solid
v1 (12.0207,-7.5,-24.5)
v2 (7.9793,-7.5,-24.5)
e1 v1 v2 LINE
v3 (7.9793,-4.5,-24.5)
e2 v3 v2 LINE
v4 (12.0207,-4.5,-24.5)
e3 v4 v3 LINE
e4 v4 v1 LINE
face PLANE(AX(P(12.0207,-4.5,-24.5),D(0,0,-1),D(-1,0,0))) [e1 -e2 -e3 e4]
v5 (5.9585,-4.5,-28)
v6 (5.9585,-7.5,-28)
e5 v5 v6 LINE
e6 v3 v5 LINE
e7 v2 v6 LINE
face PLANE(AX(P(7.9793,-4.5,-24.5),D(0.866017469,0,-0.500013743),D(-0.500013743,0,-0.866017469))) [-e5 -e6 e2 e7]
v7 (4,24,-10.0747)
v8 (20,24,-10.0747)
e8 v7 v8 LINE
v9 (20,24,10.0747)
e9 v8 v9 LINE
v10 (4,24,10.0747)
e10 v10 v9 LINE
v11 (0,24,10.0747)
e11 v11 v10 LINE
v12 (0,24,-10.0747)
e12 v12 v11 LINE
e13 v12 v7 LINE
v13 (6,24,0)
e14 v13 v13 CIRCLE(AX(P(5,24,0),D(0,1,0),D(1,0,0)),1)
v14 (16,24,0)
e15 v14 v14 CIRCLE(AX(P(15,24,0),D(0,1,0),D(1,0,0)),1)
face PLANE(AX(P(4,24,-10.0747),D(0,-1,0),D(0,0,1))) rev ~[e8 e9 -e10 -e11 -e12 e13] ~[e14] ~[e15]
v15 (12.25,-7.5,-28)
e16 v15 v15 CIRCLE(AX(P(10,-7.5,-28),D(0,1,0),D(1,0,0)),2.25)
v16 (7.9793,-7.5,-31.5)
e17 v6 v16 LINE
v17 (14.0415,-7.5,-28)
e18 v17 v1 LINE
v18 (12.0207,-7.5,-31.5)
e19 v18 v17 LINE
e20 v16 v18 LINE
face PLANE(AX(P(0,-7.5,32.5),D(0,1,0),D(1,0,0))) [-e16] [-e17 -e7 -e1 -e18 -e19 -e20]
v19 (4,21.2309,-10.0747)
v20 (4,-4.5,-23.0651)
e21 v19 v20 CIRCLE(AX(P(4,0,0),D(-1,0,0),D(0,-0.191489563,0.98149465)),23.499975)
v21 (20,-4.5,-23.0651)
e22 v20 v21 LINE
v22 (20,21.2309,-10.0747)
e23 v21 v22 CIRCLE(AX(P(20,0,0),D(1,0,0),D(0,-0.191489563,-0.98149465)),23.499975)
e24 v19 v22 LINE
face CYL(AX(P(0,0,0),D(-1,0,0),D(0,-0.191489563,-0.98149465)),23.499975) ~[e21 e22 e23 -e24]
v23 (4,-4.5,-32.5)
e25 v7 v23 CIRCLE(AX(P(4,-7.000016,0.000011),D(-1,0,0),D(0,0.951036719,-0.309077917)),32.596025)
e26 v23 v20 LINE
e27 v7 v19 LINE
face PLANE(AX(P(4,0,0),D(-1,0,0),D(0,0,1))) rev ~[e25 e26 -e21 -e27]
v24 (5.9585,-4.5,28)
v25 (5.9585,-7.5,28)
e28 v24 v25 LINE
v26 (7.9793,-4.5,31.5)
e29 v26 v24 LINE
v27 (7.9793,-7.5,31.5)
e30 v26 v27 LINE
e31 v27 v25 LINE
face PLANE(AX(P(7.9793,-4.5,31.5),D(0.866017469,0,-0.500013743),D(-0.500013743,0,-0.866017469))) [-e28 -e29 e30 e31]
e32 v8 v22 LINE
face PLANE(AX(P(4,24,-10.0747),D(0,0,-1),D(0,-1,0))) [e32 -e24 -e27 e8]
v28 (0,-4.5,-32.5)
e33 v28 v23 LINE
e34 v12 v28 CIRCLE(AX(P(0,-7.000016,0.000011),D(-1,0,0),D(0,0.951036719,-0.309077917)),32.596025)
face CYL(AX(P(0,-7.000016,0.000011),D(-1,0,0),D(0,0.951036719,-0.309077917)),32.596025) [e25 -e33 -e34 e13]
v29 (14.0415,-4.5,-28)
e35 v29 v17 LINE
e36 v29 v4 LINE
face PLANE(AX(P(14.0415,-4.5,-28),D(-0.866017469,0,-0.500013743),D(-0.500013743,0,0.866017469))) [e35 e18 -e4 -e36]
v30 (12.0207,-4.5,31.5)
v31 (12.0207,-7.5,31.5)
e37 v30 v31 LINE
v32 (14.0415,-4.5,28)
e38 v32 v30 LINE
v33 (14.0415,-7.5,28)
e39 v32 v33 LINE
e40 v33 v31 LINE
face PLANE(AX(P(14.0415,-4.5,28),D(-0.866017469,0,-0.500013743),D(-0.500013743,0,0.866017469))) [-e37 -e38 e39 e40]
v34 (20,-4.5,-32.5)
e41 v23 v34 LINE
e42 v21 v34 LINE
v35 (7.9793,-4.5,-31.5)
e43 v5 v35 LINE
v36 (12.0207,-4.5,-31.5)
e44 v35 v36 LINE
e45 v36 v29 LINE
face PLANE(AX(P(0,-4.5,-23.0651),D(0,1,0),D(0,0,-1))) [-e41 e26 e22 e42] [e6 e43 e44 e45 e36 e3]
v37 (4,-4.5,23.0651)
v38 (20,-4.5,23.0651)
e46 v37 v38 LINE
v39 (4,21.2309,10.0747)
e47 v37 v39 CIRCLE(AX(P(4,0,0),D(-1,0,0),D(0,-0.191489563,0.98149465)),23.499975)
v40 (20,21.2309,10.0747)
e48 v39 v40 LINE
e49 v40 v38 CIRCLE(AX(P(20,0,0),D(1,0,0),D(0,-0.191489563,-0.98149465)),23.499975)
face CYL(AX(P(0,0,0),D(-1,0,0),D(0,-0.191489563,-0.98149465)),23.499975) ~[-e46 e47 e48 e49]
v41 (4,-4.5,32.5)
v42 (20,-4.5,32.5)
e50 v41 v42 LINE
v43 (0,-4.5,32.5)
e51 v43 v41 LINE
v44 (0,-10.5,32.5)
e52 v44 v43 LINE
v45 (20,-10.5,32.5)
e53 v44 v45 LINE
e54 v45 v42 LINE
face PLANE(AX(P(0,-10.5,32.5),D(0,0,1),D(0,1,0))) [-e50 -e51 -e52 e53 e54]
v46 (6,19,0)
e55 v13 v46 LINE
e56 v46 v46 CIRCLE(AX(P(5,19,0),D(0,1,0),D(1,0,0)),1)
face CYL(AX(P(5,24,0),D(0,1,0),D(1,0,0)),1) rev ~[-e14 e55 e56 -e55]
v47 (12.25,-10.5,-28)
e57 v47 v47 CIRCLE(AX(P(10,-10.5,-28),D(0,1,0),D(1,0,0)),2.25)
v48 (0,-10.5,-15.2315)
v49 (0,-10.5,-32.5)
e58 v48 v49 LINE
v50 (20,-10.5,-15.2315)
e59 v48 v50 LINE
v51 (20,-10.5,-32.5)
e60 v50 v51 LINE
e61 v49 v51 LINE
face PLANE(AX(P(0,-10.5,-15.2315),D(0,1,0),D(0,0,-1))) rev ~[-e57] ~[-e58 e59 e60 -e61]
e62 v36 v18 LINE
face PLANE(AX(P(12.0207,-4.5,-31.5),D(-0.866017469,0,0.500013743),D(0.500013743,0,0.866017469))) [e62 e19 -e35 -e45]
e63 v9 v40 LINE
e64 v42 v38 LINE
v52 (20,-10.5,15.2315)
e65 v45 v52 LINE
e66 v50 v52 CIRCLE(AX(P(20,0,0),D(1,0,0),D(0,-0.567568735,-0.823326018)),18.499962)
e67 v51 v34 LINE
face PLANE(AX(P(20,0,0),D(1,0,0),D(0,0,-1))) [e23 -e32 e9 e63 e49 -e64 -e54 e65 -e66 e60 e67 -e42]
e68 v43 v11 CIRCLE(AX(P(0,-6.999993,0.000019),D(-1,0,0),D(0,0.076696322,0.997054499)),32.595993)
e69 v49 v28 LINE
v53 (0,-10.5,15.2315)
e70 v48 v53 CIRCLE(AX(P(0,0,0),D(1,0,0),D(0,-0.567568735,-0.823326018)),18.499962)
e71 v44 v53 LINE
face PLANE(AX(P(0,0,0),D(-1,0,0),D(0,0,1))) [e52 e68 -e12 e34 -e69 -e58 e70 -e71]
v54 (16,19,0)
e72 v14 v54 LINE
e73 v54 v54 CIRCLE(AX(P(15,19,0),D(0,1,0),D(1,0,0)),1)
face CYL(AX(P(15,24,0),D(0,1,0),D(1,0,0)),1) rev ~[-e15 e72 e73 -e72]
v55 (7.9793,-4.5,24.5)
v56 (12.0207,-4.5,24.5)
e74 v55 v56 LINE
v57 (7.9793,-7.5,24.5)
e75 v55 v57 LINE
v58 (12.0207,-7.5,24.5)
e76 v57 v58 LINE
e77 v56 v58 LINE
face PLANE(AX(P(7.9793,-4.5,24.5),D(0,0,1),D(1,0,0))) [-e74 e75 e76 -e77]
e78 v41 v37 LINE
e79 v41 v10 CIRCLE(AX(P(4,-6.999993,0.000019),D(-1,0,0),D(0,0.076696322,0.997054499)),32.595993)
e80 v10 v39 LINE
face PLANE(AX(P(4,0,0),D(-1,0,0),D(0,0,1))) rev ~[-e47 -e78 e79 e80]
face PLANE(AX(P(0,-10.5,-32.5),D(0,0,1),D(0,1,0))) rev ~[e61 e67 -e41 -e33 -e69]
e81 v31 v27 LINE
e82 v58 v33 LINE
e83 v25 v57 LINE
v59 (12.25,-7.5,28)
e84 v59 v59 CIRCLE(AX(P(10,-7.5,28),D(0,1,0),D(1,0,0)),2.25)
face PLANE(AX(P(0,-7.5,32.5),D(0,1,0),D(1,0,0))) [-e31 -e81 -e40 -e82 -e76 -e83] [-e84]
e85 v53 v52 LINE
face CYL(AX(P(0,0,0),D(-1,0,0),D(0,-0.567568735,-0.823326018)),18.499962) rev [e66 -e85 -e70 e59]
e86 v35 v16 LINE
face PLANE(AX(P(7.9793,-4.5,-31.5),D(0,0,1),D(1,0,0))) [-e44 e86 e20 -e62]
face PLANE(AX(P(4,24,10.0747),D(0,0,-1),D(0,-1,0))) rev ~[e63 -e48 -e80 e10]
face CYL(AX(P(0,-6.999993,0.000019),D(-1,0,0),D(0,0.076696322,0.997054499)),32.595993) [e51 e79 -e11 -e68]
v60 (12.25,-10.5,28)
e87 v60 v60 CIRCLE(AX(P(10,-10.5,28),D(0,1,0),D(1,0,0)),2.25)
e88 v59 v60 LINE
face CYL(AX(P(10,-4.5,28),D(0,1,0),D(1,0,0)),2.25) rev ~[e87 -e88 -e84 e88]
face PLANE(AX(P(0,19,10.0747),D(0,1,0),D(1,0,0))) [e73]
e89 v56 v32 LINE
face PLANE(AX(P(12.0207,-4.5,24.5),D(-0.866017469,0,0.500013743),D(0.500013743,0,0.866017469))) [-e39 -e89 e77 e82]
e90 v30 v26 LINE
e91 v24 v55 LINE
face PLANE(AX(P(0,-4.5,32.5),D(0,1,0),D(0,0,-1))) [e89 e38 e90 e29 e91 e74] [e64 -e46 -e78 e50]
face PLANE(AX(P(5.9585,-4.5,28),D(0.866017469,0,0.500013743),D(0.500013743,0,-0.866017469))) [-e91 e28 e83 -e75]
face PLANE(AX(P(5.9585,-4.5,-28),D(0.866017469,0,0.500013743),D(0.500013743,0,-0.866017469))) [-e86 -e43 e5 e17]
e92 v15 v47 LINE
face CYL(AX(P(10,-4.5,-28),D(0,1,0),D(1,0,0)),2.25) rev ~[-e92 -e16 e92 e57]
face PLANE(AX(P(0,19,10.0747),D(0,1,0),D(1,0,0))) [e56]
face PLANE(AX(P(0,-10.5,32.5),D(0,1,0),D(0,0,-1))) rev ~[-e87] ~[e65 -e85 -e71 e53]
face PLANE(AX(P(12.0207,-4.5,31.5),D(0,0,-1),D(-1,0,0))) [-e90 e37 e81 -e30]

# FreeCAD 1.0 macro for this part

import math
import FreeCAD as App
import Part
import Sketcher

V = App.Vector
Q = App.Units.Quantity


def add_polygon(sketch, points):
    """Adds a closed chain of lines whose ends are joined by coincident constraints."""
    first, n = sketch.GeometryCount, len(points)
    for a, b in zip(points, points[1:] + points[:1]):
        sketch.addGeometry(Part.LineSegment(App.Vector(*a, 0), App.Vector(*b, 0)), False)
    for i in range(n):
        sketch.addConstraint(Sketcher.Constraint("Coincident", first + i, 2, first + (i + 1) % n, 1))

doc = App.newDocument("Part")
body = doc.addObject("PartDesign::Body", "Body")

# Sketch on YZ plane
sketch1 = body.newObject("Sketcher::SketchObject", "Sketch")
sketch1.AttachmentSupport = (doc.getObject("YZ_Plane"), [""])
sketch1.MapMode = "FlatFace"
sketch1.addGeometry([
    Part.ArcOfCircle(Part.Circle(V(0, 0, 0), V(0, 0, 1), 18), math.radians(-125), math.radians(125)),  # 0
    Part.LineSegment(V(-10, -15, 0), V(-10, -32, 0)),  # 1
    Part.LineSegment(V(-10, -32, 0), V(-4, -32, 0)),  # 2
    Part.LineSegment(V(-4, -32, 0), V(-4, -23, 0)),  # 3
    Part.ArcOfCircle(Part.Circle(V(0, 0, 0), V(0, 0, 1), 23), math.radians(-101), math.radians(101)),  # 4
    Part.LineSegment(V(-4, 23, 0), V(-4, 32, 0)),  # 5
    Part.LineSegment(V(-4, 32, 0), V(-10, 32, 0)),  # 6
    Part.LineSegment(V(-10, 32, 0), V(-10, 15, 0)),  # 7
], False)
sketch1.addConstraint([
    Sketcher.Constraint("Coincident", 0, 1, 1, 1),
    Sketcher.Constraint("Coincident", 1, 2, 2, 1),
    Sketcher.Constraint("Coincident", 2, 2, 3, 1),
    Sketcher.Constraint("Coincident", 3, 2, 4, 1),
    Sketcher.Constraint("Coincident", 4, 2, 5, 1),
    Sketcher.Constraint("Coincident", 5, 2, 6, 1),
    Sketcher.Constraint("Coincident", 6, 2, 7, 1),
    Sketcher.Constraint("Coincident", 7, 2, 0, 2),
    Sketcher.Constraint("Vertical", 1),
    Sketcher.Constraint("Horizontal", 2),
    Sketcher.Constraint("Vertical", 3),
    Sketcher.Constraint("Vertical", 5),
    Sketcher.Constraint("Horizontal", 6),
    Sketcher.Constraint("Vertical", 7),
    Sketcher.Constraint("Coincident", 0, 3, -1, 1),
    Sketcher.Constraint("Coincident", 4, 3, -1, 1),
    Sketcher.Constraint("Symmetric", 2, 2, 5, 2, -1),
    Sketcher.Constraint("Vertical", 1, 2, 6, 2),
    Sketcher.Constraint("Radius", 0, 18.5),
    Sketcher.Constraint("DistanceX", 2, 1, 2, 2, 6.0),
    Sketcher.Constraint("Radius", 4, 23.5),
    Sketcher.Constraint("DistanceX", 0, 1, -1, 1, 10.5),
    Sketcher.Constraint("DistanceY", 1, 2, -1, 1, 32.5),
])
pad1 = body.newObject("PartDesign::Pad", "Pad")
pad1.Profile = sketch1
pad1.Length = 20

# Sketch on XZ plane
sketch2 = body.newObject("Sketcher::SketchObject", "Sketch001")
sketch2.AttachmentSupport = (doc.getObject("XZ_Plane"), [""])
sketch2.MapMode = "FlatFace"
sketch2.AttachmentOffset = App.Placement(V(0, 0, 4.5), App.Rotation())
add_polygon(sketch2, [(6, 28), (8, 31.5), (12, 31.5), (14, 28), (12, 24.5), (8, 24.5)])  # lines 0-5
sketch2.addGeometry(Part.Circle(V(10, 28, 0), V(0, 0, 1), 2.2), False)  # 6
add_polygon(sketch2, [(14, -28), (12, -31.5), (8, -31.5), (6, -28), (8, -24.5), (12, -24.5)])  # lines 7-12
sketch2.addGeometry(Part.Circle(V(10, -28, 0), V(0, 0, 1), 2.2), False)  # 13
sketch2.addConstraint([
    Sketcher.Constraint("Horizontal", 1),
    Sketcher.Constraint("Horizontal", 4),
    Sketcher.Constraint("Horizontal", 8),
    Sketcher.Constraint("Horizontal", 11),
    Sketcher.Constraint("Equal", 6, 13),
    Sketcher.Constraint("Symmetric", 6, 3, 13, 3, -1),
    Sketcher.Constraint("Symmetric", 1, 2, 7, 2, -1),
    Sketcher.Constraint("Symmetric", 5, 2, 9, 2, -1),
    Sketcher.Constraint("Symmetric", 4, 2, 10, 2, -1),
    Sketcher.Constraint("Symmetric", 2, 2, 12, 2, -1),
    Sketcher.Constraint("Parallel", 0, 3),
    Sketcher.Constraint("Parallel", 2, 5),
    Sketcher.Constraint("Parallel", 3, 7),
    Sketcher.Constraint("Parallel", 5, 9),
    Sketcher.Constraint("Parallel", 9, 12),
    Sketcher.Constraint("Horizontal", 6, 3, 2, 2),
    Sketcher.Constraint("Horizontal", 2, 2, 5, 2),
    Sketcher.Constraint("Vertical", 1, 2, 3, 2),
    Sketcher.Constraint("Diameter", 6, 4.5),
    Sketcher.Constraint("DistanceX", -1, 1, 6, 3, 10.0),
    Sketcher.Constraint("DistanceY", 13, 3, 6, 3, 56.0),
    Sketcher.Constraint("DistanceY", 3, 2, 1, 2, 7.0),
    Sketcher.Constraint("Angle", 0, Q("59.999 deg")),
    Sketcher.Constraint("DistanceX", 1, 1, 1, 2, 4.0414),
    Sketcher.Constraint("DistanceX", -1, 1, 0, 2, 7.9793),
])
pocket1 = body.newObject("PartDesign::Pocket", "Pocket")
pocket1.Profile = sketch2
pocket1.Length = 3
pocket1.Reversed = True

# Sketch on XZ plane
sketch3 = body.newObject("Sketcher::SketchObject", "Sketch002")
sketch3.AttachmentSupport = (doc.getObject("XZ_Plane"), [""])
sketch3.MapMode = "FlatFace"
sketch3.AttachmentOffset = App.Placement(V(0, 0, 4.5), App.Rotation())
sketch3.addGeometry([
    Part.Circle(V(10, 28, 0), V(0, 0, 1), 2.2),
    Part.Circle(V(10, -28, 0), V(0, 0, 1), 2.2),
], False)
sketch3.addConstraint([
    Sketcher.Constraint("Equal", 0, 1),
    Sketcher.Constraint("Symmetric", 0, 3, 1, 3, -1),
    Sketcher.Constraint("Diameter", 0, 4.5),
    Sketcher.Constraint("DistanceX", -1, 1, 0, 3, 10.0),
    Sketcher.Constraint("DistanceY", -1, 1, 0, 3, 28.0),
])
pocket2 = body.newObject("PartDesign::Pocket", "Pocket001")
pocket2.Profile = sketch3
pocket2.Type = "ThroughAll"
pocket2.Reversed = True

# Sketch on YZ plane
sketch4 = body.newObject("Sketcher::SketchObject", "Sketch003")
sketch4.AttachmentSupport = (doc.getObject("YZ_Plane"), [""])
sketch4.MapMode = "FlatFace"
sketch4.addGeometry([
    Part.ArcOfCircle(Part.Circle(V(-7, 0, 0), V(0, 0, 1), 33), math.radians(-86), math.radians(-18)),  # 0
    Part.LineSegment(V(-4, -32, 0), V(-4, -23, 0)),  # 1
    Part.ArcOfCircle(Part.Circle(V(0, 0, 0), V(0, 0, 1), 23), math.radians(-101), math.radians(101)),  # 2
    Part.LineSegment(V(-4, 23, 0), V(-4, 32, 0)),  # 3
    Part.ArcOfCircle(Part.Circle(V(-7, 0, 0), V(0, 0, 1), 33), math.radians(18), math.radians(86)),  # 4
    Part.LineSegment(V(24, 10, 0), V(24, -10, 0)),  # 5
], False)
sketch4.addConstraint([
    Sketcher.Constraint("Coincident", 0, 1, 1, 1),
    Sketcher.Constraint("Coincident", 1, 2, 2, 1),
    Sketcher.Constraint("Coincident", 2, 2, 3, 1),
    Sketcher.Constraint("Coincident", 3, 2, 4, 2),
    Sketcher.Constraint("Coincident", 4, 1, 5, 1),
    Sketcher.Constraint("Coincident", 5, 2, 0, 2),
    Sketcher.Constraint("Vertical", 1),
    Sketcher.Constraint("Vertical", 3),
    Sketcher.Constraint("Vertical", 5),
    Sketcher.Constraint("Coincident", 2, 3, -1, 1),
    Sketcher.Constraint("Coincident", 4, 3, 0, 3),
    Sketcher.Constraint("Equal", 0, 4),
    Sketcher.Constraint("Symmetric", 0, 1, 3, 2, -1),
    Sketcher.Constraint("Radius", 2, 23.5),
    Sketcher.Constraint("DistanceX", 0, 3, -1, 1, 7.0),
    Sketcher.Constraint("DistanceX", -1, 1, 4, 1, 24.0),
    Sketcher.Constraint("Radius", 0, 32.596),
    Sketcher.Constraint("DistanceX", 0, 1, -1, 1, 4.5),
])
pad2 = body.newObject("PartDesign::Pad", "Pad001")
pad2.Profile = sketch4
pad2.Length = 4

# Sketch on YZ plane
sketch5 = body.newObject("Sketcher::SketchObject", "Sketch004")
sketch5.AttachmentSupport = (doc.getObject("YZ_Plane"), [""])
sketch5.MapMode = "FlatFace"
sketch5.AttachmentOffset = App.Placement(V(0, 0, 4), App.Rotation())
sketch5.addGeometry([
    Part.LineSegment(V(21.2, -10.1, 0), V(24, -10.1, 0)),
    Part.LineSegment(V(24, -10.1, 0), V(24, 10.1, 0)),
    Part.LineSegment(V(24, 10.1, 0), V(21.2, 10.1, 0)),
    Part.ArcOfCircle(Part.Circle(V(0, 0, 0), V(0, 0, 1), 23.5), math.radians(-25), math.radians(25)),
], False)
sketch5.addConstraint([
    Sketcher.Constraint("Coincident", 0, 2, 1, 1),
    Sketcher.Constraint("Coincident", 1, 2, 2, 1),
    Sketcher.Constraint("Coincident", 2, 2, 3, 2),
    Sketcher.Constraint("Coincident", 3, 1, 0, 1),
    Sketcher.Constraint("Horizontal", 0),
    Sketcher.Constraint("Vertical", 1),
    Sketcher.Constraint("Horizontal", 2),
    Sketcher.Constraint("Coincident", 3, 3, -1, 1),
    Sketcher.Constraint("Vertical", 2, 2, 3, 1),
    Sketcher.Constraint("Radius", 3, 23.5),
    Sketcher.Constraint("DistanceX", -1, 1, 0, 2, 24.0),
    Sketcher.Constraint("DistanceX", 0, 1, 0, 2, 2.769),
])
pad3 = body.newObject("PartDesign::Pad", "Pad002")
pad3.Profile = sketch5
pad3.Length = 16

# Sketch on XZ plane
sketch6 = body.newObject("Sketcher::SketchObject", "Sketch005")
sketch6.AttachmentSupport = (doc.getObject("XZ_Plane"), [""])
sketch6.MapMode = "FlatFace"
sketch6.AttachmentOffset = App.Placement(V(0, 0, -24), App.Rotation())
sketch6.addGeometry([
    Part.Circle(V(15, 0, 0), V(0, 0, 1), 1),
    Part.Circle(V(5, 0, 0), V(0, 0, 1), 1),
], False)
sketch6.addConstraint([
    Sketcher.Constraint("Equal", 0, 1),
    Sketcher.Constraint("PointOnObject", 0, 3, -1),
    Sketcher.Constraint("PointOnObject", 1, 3, -1),
    Sketcher.Constraint("Diameter", 0, 2.0),
    Sketcher.Constraint("DistanceX", -1, 1, 0, 3, 15.0),
    Sketcher.Constraint("DistanceX", -1, 1, 1, 3, 5.0),
])
pocket3 = body.newObject("PartDesign::Pocket", "Pocket002")
pocket3.Profile = sketch6
pocket3.Length = 5
pocket3.Reversed = True

doc.recompute()
